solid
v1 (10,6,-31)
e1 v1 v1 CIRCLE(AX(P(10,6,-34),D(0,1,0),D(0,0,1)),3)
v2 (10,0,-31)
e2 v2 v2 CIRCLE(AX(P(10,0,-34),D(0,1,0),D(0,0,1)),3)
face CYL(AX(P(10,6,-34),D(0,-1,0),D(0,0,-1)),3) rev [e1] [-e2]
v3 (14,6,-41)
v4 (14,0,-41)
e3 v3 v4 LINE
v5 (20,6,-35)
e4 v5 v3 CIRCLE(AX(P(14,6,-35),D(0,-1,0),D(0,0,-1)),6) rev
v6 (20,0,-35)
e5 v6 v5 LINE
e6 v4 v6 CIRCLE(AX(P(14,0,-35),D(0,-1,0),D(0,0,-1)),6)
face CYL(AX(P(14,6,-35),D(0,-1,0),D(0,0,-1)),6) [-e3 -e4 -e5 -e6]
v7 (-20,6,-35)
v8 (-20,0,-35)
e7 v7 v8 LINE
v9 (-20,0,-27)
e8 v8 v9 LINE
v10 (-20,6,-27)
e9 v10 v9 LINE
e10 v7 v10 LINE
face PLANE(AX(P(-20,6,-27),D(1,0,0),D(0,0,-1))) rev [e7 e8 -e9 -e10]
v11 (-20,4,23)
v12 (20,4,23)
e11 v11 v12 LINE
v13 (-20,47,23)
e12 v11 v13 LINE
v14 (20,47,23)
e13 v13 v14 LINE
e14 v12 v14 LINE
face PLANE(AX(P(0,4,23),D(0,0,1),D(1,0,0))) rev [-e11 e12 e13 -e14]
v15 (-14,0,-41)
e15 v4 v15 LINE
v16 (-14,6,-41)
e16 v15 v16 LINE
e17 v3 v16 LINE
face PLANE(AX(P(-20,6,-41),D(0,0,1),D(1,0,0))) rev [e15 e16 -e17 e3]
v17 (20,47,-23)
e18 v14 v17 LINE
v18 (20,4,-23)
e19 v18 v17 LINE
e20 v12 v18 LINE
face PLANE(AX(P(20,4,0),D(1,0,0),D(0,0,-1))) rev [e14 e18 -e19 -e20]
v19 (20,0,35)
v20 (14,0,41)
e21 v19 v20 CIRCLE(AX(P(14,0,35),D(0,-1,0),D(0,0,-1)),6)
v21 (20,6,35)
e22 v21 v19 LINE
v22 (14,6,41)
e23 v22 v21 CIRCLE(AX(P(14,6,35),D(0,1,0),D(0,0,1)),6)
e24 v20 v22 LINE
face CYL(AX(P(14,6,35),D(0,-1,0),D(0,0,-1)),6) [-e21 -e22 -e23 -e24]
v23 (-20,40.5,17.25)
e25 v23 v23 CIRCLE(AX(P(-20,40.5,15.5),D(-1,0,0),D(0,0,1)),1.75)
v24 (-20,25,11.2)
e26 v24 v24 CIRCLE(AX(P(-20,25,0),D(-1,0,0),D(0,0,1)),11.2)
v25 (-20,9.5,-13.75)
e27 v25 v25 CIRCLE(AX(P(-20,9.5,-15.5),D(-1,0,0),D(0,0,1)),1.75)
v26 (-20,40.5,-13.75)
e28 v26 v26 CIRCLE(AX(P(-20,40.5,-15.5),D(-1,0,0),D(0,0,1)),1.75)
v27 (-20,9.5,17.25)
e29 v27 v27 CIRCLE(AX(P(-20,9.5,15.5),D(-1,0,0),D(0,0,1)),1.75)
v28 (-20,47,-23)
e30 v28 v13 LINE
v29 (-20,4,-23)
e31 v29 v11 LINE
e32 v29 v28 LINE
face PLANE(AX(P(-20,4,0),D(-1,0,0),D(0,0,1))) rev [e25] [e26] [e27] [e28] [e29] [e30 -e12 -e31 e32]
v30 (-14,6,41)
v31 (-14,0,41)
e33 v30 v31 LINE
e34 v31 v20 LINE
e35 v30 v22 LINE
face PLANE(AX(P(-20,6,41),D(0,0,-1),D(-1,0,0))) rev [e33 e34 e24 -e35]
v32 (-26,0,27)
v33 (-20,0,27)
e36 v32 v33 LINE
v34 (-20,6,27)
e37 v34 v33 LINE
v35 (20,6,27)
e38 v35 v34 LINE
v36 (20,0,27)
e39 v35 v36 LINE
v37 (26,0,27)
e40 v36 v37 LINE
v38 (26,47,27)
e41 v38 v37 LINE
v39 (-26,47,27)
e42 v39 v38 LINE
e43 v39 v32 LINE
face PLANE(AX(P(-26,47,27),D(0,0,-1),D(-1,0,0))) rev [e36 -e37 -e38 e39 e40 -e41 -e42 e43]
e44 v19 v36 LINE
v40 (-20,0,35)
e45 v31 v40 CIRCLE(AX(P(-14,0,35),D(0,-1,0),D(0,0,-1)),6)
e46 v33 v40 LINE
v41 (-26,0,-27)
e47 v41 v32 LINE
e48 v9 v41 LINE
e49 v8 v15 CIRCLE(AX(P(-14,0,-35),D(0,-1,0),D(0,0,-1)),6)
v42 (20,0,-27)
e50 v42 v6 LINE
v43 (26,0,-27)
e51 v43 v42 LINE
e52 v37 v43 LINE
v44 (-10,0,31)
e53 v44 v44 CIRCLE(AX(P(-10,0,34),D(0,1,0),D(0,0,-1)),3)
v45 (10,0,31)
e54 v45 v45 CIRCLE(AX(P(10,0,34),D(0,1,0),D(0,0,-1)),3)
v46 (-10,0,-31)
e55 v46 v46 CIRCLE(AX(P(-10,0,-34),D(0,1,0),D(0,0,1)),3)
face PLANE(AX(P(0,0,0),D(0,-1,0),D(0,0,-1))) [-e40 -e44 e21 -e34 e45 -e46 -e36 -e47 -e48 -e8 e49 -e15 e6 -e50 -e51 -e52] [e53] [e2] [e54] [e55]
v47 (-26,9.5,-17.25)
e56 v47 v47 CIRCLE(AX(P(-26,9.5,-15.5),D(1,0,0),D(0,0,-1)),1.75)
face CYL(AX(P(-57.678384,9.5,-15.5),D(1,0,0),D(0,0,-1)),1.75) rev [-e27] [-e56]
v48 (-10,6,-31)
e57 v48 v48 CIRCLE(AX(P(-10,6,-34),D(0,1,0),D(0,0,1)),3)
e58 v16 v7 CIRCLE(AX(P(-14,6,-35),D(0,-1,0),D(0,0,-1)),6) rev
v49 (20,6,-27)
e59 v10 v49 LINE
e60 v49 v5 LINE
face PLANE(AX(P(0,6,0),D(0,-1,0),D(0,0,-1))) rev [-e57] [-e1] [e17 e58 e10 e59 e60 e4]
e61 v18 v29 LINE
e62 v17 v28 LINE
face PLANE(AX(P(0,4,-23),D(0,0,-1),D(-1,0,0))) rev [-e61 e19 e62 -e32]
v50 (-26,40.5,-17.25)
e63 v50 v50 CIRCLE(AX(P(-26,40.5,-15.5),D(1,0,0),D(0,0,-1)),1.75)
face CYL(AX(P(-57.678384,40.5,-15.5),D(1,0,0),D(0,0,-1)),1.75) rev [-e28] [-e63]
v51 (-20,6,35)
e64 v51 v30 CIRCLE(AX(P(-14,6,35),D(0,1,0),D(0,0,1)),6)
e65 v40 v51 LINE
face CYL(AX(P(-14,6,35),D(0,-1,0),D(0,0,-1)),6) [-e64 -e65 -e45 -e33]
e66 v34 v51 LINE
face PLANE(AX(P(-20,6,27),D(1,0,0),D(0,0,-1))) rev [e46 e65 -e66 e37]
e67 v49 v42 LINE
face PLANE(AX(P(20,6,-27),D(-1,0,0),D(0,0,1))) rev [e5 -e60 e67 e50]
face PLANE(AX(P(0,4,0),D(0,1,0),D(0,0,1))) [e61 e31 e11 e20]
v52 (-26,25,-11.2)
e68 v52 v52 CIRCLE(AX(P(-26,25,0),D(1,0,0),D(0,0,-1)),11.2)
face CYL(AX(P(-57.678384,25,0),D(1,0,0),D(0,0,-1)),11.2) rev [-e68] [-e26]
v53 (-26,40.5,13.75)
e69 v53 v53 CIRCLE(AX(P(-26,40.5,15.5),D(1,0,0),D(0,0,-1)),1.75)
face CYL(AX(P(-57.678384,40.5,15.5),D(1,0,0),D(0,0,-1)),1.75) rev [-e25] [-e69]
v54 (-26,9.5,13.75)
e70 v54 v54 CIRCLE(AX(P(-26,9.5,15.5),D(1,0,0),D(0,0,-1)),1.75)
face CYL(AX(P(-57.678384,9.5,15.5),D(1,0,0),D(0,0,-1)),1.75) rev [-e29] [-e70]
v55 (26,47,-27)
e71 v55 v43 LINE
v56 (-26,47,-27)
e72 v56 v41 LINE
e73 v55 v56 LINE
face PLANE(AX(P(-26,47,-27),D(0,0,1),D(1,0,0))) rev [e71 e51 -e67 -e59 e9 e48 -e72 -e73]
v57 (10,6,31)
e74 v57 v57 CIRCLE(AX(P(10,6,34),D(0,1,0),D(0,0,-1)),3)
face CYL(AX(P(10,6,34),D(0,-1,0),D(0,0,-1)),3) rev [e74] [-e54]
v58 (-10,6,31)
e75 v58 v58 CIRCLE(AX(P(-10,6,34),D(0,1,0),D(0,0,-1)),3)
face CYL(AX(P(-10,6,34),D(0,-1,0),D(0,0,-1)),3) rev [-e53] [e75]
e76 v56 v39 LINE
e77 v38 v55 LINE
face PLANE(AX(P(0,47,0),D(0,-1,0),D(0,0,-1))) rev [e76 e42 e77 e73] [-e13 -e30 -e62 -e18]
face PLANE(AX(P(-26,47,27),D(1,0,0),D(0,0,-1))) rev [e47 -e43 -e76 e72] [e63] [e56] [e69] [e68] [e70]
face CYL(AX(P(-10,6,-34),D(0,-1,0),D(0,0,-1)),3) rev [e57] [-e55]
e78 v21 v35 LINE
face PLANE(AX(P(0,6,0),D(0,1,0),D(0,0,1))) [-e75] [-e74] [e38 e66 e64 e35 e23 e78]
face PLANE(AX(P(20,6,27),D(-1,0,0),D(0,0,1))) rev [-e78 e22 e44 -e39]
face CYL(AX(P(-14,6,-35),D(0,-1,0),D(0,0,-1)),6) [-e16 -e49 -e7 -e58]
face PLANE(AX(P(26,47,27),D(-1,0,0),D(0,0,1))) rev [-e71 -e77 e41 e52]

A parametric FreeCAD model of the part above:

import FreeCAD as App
import Part
import Sketcher

V = App.Vector


def edges_at(feature, points):
    """Names of the edges that pass closest to the given points."""
    edges = feature.Shape.Edges
    near = lambda p: min(range(len(edges)), key=lambda i: edges[i].distToShape(Part.Vertex(*p))[0])
    return sorted({f"Edge{near(p) + 1}" for p in points})

doc = App.newDocument("Part")
body = doc.addObject("PartDesign::Body", "Body")

sketch1 = doc.addObject("Sketcher::SketchObject", "Sketch")
body.addObject(sketch1)
sketch1.AttachmentSupport = (doc.XZ_Plane, [""])
sketch1.MapMode = "FlatFace"
sketch1.addGeometry([
    Part.LineSegment(V(-26, -27, 0), V(-26, 27, 0)),
    Part.LineSegment(V(-26, 27, 0), V(26, 27, 0)),
    Part.LineSegment(V(26, 27, 0), V(26, -27, 0)),
    Part.LineSegment(V(26, -27, 0), V(-26, -27, 0)),
], False)
sketch1.addConstraint([
    Sketcher.Constraint("Coincident", 0, 2, 1, 1),
    Sketcher.Constraint("Coincident", 1, 2, 2, 1),
    Sketcher.Constraint("Coincident", 2, 2, 3, 1),
    Sketcher.Constraint("Coincident", 3, 2, 0, 1),
    Sketcher.Constraint("Vertical", 0),
    Sketcher.Constraint("Horizontal", 1),
    Sketcher.Constraint("Vertical", 2),
    Sketcher.Constraint("Horizontal", 3),
    Sketcher.Constraint("Symmetric", 0, 2, 2, 2, -1, 1),
    Sketcher.Constraint("DistanceX", 1, 1, 1, 2, 52.0),
    Sketcher.Constraint("DistanceY", 0, 1, 0, 2, 54.0),
])
pad1 = doc.addObject("PartDesign::Pad", "Pad")
body.addObject(pad1)
pad1.Profile = sketch1
pad1.Length = 47
pad1.Reversed = True

sketch2 = doc.addObject("Sketcher::SketchObject", "Sketch001")
body.addObject(sketch2)
sketch2.AttachmentSupport = (doc.XZ_Plane, [""])
sketch2.MapMode = "FlatFace"
sketch2.AttachmentOffset = App.Placement(V(0, 0, -47), App.Rotation())
sketch2.addGeometry([
    Part.LineSegment(V(-20, -23, 0), V(-20, 23, 0)),
    Part.LineSegment(V(-20, 23, 0), V(20, 23, 0)),
    Part.LineSegment(V(20, 23, 0), V(20, -23, 0)),
    Part.LineSegment(V(20, -23, 0), V(-20, -23, 0)),
], False)
sketch2.addConstraint([
    Sketcher.Constraint("Coincident", 0, 2, 1, 1),
    Sketcher.Constraint("Coincident", 1, 2, 2, 1),
    Sketcher.Constraint("Coincident", 2, 2, 3, 1),
    Sketcher.Constraint("Coincident", 3, 2, 0, 1),
    Sketcher.Constraint("Vertical", 0),
    Sketcher.Constraint("Horizontal", 1),
    Sketcher.Constraint("Vertical", 2),
    Sketcher.Constraint("Horizontal", 3),
    Sketcher.Constraint("Symmetric", 0, 2, 2, 2, -1, 1),
    Sketcher.Constraint("DistanceX", 1, 1, 1, 2, 40.0),
    Sketcher.Constraint("DistanceY", 0, 1, 0, 2, 46.0),
])
pocket1 = doc.addObject("PartDesign::Pocket", "Pocket")
body.addObject(pocket1)
pocket1.Profile = sketch2
pocket1.Length = 43
pocket1.Reversed = True

sketch3 = doc.addObject("Sketcher::SketchObject", "Sketch002")
body.addObject(sketch3)
sketch3.AttachmentSupport = (doc.YZ_Plane, [""])
sketch3.MapMode = "FlatFace"
sketch3.AttachmentOffset = App.Placement(V(0, 0, -20), App.Rotation())
sketch3.addGeometry([
    Part.Circle(V(25, 0, 0), V(0, 0, 1), 11.2),
    Part.Circle(V(40.5, 15.5, 0), V(0, 0, 1), 1.8),
    Part.Circle(V(40.5, -15.5, 0), V(0, 0, 1), 1.8),
    Part.Circle(V(9.5, -15.5, 0), V(0, 0, 1), 1.8),
    Part.Circle(V(9.5, 15.5, 0), V(0, 0, 1), 1.8),
], False)
sketch3.addConstraint([
    Sketcher.Constraint("Equal", 1, 2),
    Sketcher.Constraint("Equal", 2, 3),
    Sketcher.Constraint("Equal", 3, 4),
    Sketcher.Constraint("Symmetric", 1, 3, 2, 3, -1),
    Sketcher.Constraint("Symmetric", 3, 3, 4, 3, -1),
    Sketcher.Constraint("PointOnObject", 0, 3, -1),
    Sketcher.Constraint("Horizontal", 2, 3, 3, 3),
    Sketcher.Constraint("Diameter", 0, 22.4),
    Sketcher.Constraint("Diameter", 1, 3.5),
    Sketcher.Constraint("DistanceX", -1, 1, 0, 3, 25.0),
    Sketcher.Constraint("DistanceY", 2, 3, 1, 3, 31.0),
    Sketcher.Constraint("DistanceX", 3, 3, 2, 3, 31.0),
    Sketcher.Constraint("DistanceX", -1, 1, 1, 3, 40.5),
])
pocket2 = doc.addObject("PartDesign::Pocket", "Pocket001")
body.addObject(pocket2)
pocket2.Profile = sketch3
pocket2.Length = 6

sketch4 = doc.addObject("Sketcher::SketchObject", "Sketch003")
body.addObject(sketch4)
sketch4.AttachmentSupport = (doc.XZ_Plane, [""])
sketch4.MapMode = "FlatFace"
sketch4.addGeometry([
    Part.LineSegment(V(-20, -41, 0), V(-20, -27, 0)),
    Part.LineSegment(V(-20, -27, 0), V(20, -27, 0)),
    Part.LineSegment(V(20, -27, 0), V(20, -41, 0)),
    Part.LineSegment(V(20, -41, 0), V(-20, -41, 0)),
    Part.Circle(V(-10, -34, 0), V(0, 0, 1), 3),
    Part.Circle(V(10, -34, 0), V(0, 0, 1), 3),
    Part.LineSegment(V(-20, 27, 0), V(-20, 41, 0)),
    Part.LineSegment(V(-20, 41, 0), V(20, 41, 0)),
    Part.LineSegment(V(20, 41, 0), V(20, 27, 0)),
    Part.LineSegment(V(20, 27, 0), V(-20, 27, 0)),
    Part.Circle(V(-10, 34, 0), V(0, 0, 1), 3),
    Part.Circle(V(10, 34, 0), V(0, 0, 1), 3),
], False)
sketch4.addConstraint([
    Sketcher.Constraint("Coincident", 0, 2, 1, 1),
    Sketcher.Constraint("Coincident", 1, 2, 2, 1),
    Sketcher.Constraint("Coincident", 2, 2, 3, 1),
    Sketcher.Constraint("Coincident", 3, 2, 0, 1),
    Sketcher.Constraint("Coincident", 6, 2, 7, 1),
    Sketcher.Constraint("Coincident", 7, 2, 8, 1),
    Sketcher.Constraint("Coincident", 8, 2, 9, 1),
    Sketcher.Constraint("Coincident", 9, 2, 6, 1),
    Sketcher.Constraint("Vertical", 0),
    Sketcher.Constraint("Horizontal", 1),
    Sketcher.Constraint("Vertical", 2),
    Sketcher.Constraint("Horizontal", 3),
    Sketcher.Constraint("Vertical", 6),
    Sketcher.Constraint("Horizontal", 7),
    Sketcher.Constraint("Vertical", 8),
    Sketcher.Constraint("Horizontal", 9),
    Sketcher.Constraint("Equal", 4, 5),
    Sketcher.Constraint("Equal", 5, 10),
    Sketcher.Constraint("Equal", 10, 11),
    Sketcher.Constraint("Symmetric", 5, 3, 10, 3, -1, 1),
    Sketcher.Constraint("Symmetric", 4, 3, 11, 3, -1, 1),
    Sketcher.Constraint("Symmetric", 2, 2, 6, 2, -1, 1),
    Sketcher.Constraint("Symmetric", 0, 2, 8, 2, -1, 1),
    Sketcher.Constraint("Symmetric", 4, 3, 5, 3, -2),
    Sketcher.Constraint("Vertical", 3, 2, 6, 2),
    Sketcher.Constraint("Diameter", 4, 6.0),
    Sketcher.Constraint("DistanceX", 1, 1, 1, 2, 40.0),
    Sketcher.Constraint("DistanceY", 0, 1, 0, 2, 14.0),
    Sketcher.Constraint("DistanceX", 4, 3, -1, 1, 10.0),
    Sketcher.Constraint("DistanceY", 4, 3, -1, 1, 34.0),
    Sketcher.Constraint("DistanceY", 0, 2, -1, 1, 27.0),
])
pad2 = doc.addObject("PartDesign::Pad", "Pad001")
body.addObject(pad2)
pad2.Profile = sketch4
pad2.Length = 6
pad2.Reversed = True
doc.recompute()

fillet = doc.addObject("PartDesign::Fillet", "Fillet")
body.addObject(fillet)
fillet.Base = (pad2, edges_at(pad2, [
    (-20, 3, -41),
    (20, 3, -41),
    (-20, 3, 41),
    (20, 3, 41),
]))
fillet.Radius = 6

doc.recompute()
